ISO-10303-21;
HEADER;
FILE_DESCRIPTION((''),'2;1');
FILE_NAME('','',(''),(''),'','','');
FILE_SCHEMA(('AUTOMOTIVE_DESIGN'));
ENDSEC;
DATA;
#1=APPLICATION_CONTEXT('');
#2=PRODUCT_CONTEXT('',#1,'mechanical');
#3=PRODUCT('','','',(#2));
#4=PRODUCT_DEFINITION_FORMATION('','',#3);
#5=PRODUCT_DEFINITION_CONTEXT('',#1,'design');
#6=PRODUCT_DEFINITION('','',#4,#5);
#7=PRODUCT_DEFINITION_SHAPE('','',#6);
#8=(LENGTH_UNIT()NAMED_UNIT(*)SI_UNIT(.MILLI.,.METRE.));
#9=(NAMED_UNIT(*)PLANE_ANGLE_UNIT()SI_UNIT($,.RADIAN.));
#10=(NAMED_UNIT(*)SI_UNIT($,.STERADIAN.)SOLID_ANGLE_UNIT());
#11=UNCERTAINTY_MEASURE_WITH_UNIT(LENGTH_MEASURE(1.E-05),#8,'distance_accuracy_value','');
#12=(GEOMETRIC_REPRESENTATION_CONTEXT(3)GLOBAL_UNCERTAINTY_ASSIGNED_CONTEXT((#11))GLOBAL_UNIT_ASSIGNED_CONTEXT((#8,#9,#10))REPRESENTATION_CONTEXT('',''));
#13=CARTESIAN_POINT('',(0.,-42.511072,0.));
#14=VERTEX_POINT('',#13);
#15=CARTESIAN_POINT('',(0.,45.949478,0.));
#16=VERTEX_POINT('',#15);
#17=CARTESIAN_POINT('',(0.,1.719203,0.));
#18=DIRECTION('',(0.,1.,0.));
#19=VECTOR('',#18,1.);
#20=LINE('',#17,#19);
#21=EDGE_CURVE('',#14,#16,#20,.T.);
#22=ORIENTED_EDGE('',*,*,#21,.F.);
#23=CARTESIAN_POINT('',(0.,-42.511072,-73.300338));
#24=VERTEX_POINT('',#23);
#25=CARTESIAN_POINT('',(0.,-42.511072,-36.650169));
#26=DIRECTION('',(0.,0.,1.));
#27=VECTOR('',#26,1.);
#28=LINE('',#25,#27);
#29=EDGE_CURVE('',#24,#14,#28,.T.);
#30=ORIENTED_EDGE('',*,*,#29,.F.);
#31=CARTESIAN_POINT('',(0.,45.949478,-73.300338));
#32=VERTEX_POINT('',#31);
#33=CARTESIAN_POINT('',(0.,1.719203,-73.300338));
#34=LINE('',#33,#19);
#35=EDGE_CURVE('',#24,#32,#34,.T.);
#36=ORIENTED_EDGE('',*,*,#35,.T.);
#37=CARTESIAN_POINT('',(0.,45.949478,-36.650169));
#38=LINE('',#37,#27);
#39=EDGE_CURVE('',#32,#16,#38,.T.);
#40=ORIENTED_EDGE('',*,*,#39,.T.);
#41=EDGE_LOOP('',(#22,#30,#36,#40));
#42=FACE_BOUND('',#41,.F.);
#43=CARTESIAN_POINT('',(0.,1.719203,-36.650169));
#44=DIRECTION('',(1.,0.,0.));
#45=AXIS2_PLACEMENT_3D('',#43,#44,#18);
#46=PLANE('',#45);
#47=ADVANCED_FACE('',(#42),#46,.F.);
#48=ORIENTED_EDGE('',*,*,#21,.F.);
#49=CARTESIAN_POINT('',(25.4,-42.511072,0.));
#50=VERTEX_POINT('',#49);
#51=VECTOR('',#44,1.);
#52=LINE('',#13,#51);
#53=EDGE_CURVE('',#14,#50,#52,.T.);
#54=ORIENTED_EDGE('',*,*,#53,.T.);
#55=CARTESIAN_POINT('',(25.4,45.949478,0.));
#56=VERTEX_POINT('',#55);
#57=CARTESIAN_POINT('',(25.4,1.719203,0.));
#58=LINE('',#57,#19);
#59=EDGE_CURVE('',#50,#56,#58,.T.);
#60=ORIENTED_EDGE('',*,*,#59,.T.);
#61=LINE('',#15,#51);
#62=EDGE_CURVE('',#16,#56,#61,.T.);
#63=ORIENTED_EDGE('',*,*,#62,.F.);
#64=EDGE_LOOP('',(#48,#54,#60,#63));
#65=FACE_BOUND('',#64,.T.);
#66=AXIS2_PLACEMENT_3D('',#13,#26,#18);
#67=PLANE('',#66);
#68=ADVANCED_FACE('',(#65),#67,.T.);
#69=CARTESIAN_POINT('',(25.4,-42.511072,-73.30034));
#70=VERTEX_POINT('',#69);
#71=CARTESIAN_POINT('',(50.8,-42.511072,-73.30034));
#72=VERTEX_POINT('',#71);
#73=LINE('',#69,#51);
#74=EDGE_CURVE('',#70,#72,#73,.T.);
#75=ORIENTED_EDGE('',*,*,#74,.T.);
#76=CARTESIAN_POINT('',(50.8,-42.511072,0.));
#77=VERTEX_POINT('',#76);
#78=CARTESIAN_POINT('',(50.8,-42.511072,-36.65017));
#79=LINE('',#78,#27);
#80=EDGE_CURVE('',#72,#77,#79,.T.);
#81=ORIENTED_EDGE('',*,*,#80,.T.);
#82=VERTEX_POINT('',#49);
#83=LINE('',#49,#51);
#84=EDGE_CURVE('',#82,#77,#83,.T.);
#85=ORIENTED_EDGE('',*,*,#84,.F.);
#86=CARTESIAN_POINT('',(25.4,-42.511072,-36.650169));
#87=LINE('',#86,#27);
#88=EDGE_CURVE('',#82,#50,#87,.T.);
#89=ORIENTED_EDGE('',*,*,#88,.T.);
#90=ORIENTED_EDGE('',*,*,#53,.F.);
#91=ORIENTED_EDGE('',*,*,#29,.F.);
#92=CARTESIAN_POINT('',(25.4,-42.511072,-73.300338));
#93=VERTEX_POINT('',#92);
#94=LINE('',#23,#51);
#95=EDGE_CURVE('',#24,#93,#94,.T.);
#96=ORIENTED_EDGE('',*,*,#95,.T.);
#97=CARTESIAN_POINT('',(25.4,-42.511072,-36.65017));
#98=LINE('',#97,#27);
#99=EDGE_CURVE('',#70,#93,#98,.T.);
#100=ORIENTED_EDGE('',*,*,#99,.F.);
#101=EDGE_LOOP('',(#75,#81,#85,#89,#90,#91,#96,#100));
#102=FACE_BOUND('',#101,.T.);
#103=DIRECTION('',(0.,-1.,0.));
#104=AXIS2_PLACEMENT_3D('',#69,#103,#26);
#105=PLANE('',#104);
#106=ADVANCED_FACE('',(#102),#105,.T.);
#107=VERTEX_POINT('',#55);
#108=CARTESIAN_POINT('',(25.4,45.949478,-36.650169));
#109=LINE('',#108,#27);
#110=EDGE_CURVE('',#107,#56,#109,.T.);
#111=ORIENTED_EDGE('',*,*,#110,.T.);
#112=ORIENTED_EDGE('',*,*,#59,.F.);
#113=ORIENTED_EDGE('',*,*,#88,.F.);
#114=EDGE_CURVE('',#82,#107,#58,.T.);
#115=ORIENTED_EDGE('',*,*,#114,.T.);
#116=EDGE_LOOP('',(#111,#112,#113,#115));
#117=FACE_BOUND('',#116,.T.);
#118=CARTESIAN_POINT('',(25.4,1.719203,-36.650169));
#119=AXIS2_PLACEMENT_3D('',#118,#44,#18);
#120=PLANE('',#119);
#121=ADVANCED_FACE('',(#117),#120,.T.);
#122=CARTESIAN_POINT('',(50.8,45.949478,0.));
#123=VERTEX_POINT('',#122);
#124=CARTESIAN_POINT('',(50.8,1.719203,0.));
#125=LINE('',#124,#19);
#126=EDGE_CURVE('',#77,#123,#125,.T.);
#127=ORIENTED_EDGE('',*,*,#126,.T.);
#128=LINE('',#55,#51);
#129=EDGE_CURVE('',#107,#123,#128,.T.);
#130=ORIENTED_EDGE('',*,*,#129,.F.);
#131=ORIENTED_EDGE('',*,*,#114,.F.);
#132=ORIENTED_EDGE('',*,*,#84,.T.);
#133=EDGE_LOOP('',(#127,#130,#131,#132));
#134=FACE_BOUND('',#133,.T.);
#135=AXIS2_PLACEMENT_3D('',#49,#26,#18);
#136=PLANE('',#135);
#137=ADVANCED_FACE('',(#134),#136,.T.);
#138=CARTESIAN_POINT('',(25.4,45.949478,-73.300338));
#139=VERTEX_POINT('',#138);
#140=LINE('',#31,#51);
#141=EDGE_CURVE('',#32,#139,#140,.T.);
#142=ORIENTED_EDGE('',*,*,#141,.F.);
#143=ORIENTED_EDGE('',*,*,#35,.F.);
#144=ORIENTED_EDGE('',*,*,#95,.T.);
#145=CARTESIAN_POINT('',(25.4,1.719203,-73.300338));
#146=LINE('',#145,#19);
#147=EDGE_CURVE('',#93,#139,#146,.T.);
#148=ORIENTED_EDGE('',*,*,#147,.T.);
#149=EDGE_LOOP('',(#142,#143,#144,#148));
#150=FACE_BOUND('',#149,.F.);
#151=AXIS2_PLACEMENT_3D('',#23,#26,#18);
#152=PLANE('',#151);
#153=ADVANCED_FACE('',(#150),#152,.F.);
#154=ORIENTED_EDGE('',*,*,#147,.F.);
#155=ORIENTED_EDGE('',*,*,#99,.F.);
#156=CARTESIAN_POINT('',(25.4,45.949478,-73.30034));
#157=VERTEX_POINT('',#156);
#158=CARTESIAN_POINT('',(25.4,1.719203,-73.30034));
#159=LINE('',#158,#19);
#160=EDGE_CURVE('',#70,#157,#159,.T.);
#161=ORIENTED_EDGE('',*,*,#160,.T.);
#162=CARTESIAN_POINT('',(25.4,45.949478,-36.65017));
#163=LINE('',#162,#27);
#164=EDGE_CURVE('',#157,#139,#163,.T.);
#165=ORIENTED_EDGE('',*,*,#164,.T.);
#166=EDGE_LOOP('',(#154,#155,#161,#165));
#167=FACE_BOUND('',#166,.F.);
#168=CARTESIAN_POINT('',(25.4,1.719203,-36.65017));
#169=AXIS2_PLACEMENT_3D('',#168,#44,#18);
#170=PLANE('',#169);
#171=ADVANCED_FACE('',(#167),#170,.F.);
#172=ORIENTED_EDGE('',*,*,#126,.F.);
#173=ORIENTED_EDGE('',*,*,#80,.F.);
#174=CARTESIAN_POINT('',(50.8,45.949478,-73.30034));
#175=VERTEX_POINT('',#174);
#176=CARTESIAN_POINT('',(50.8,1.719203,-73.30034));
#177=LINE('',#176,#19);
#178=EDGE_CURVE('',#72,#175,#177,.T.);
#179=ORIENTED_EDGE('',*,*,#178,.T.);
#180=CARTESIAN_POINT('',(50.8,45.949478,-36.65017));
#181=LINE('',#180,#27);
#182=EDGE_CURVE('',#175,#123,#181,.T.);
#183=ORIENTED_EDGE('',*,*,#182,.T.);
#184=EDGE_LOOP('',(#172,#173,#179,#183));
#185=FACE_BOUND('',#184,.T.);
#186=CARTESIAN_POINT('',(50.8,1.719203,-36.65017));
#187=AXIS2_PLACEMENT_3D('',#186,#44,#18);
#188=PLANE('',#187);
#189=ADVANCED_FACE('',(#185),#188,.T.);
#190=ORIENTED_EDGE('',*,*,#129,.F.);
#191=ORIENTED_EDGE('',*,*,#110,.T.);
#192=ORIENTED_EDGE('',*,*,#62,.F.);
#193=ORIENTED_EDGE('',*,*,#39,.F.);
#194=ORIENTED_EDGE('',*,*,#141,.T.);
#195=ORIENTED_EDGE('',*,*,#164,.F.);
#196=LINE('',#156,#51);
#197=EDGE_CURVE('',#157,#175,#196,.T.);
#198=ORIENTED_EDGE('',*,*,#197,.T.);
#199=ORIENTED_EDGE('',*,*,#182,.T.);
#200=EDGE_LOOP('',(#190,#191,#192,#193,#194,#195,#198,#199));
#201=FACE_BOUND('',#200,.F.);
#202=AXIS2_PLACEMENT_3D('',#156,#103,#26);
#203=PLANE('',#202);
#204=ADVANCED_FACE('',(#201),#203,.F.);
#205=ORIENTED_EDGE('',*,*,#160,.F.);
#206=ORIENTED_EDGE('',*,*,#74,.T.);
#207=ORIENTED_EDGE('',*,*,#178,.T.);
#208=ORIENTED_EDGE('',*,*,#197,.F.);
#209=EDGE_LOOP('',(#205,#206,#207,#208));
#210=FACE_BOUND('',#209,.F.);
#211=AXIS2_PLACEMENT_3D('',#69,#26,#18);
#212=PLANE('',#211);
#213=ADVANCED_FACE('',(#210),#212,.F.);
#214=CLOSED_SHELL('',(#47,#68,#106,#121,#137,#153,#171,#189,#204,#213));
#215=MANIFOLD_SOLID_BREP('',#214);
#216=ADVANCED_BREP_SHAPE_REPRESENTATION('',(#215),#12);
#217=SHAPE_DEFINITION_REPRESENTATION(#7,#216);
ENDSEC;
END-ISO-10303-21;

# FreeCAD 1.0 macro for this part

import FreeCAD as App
import Part
import Sketcher
Q = App.Units.Quantity

doc = App.newDocument("Part")
body = doc.addObject("PartDesign::Body", "Body")

# Sketch on YZ plane
sketch1 = body.newObject("Sketcher::SketchObject", "Sketch")
sketch1.AttachmentSupport = (doc.getObject("YZ_Plane"), [""])
sketch1.MapMode = "FlatFace"
sketch1.addGeometry([
    Part.LineSegment(App.Vector(-43, 0, 0), App.Vector(-43, -73, 0)),
    Part.LineSegment(App.Vector(-43, -73, 0), App.Vector(46, -73, 0)),
    Part.LineSegment(App.Vector(46, -73, 0), App.Vector(46, 0, 0)),
    Part.LineSegment(App.Vector(46, 0, 0), App.Vector(-43, 0, 0)),
], False)
sketch1.addConstraint([
    Sketcher.Constraint("Coincident", 0, 2, 1, 1),
    Sketcher.Constraint("Coincident", 1, 2, 2, 1),
    Sketcher.Constraint("Coincident", 2, 2, 3, 1),
    Sketcher.Constraint("Coincident", 3, 2, 0, 1),
    Sketcher.Constraint("Vertical", 0),
    Sketcher.Constraint("Horizontal", 1),
    Sketcher.Constraint("Vertical", 2),
    Sketcher.Constraint("Horizontal", 3),
    Sketcher.Constraint("PointOnObject", 2, 2, -1),
    Sketcher.Constraint("DistanceX", 1, 1, 1, 2, Q("88.46055 mm")),
    Sketcher.Constraint("DistanceY", 0, 2, 0, 1, Q("73.300339 mm")),
    Sketcher.Constraint("DistanceX", 0, 2, -1, 1, Q("42.511072 mm")),
])
pad1 = body.newObject("PartDesign::Pad", "Pad")
pad1.Profile = sketch1
pad1.Length = Q("1 in")

# Sketch on YZ plane
sketch2 = body.newObject("Sketcher::SketchObject", "Sketch001")
sketch2.AttachmentSupport = (doc.getObject("YZ_Plane"), [""])
sketch2.MapMode = "FlatFace"
sketch2.AttachmentOffset = App.Placement(App.Vector(0, 0, 1 * 25.4), App.Rotation())
sketch2.addGeometry([
    Part.LineSegment(App.Vector(-43, 0, 0), App.Vector(-43, -73, 0)),
    Part.LineSegment(App.Vector(-43, -73, 0), App.Vector(46, -73, 0)),
    Part.LineSegment(App.Vector(46, -73, 0), App.Vector(46, 0, 0)),
    Part.LineSegment(App.Vector(46, 0, 0), App.Vector(-43, 0, 0)),
], False)
sketch2.addConstraint([
    Sketcher.Constraint("Coincident", 0, 2, 1, 1),
    Sketcher.Constraint("Coincident", 1, 2, 2, 1),
    Sketcher.Constraint("Coincident", 2, 2, 3, 1),
    Sketcher.Constraint("Coincident", 3, 2, 0, 1),
    Sketcher.Constraint("Vertical", 0),
    Sketcher.Constraint("Horizontal", 1),
    Sketcher.Constraint("Vertical", 2),
    Sketcher.Constraint("Horizontal", 3),
    Sketcher.Constraint("PointOnObject", 2, 2, -1),
    Sketcher.Constraint("DistanceX", 1, 1, 1, 2, Q("88.46055 mm")),
    Sketcher.Constraint("DistanceY", 0, 2, 0, 1, Q("73.30034 mm")),
    Sketcher.Constraint("DistanceX", 0, 2, -1, 1, Q("42.511072 mm")),
])
pad2 = body.newObject("PartDesign::Pad", "Pad001")
pad2.Profile = sketch2
pad2.Length = Q("1 in")

# Sketch on YZ plane
sketch3 = body.newObject("Sketcher::SketchObject", "Sketch002")
sketch3.AttachmentSupport = (doc.getObject("YZ_Plane"), [""])
sketch3.MapMode = "FlatFace"
sketch3.addGeometry([
    Part.LineSegment(App.Vector(-43, 0, 0), App.Vector(-43, -73, 0)),
    Part.LineSegment(App.Vector(-43, -73, 0), App.Vector(46, -73, 0)),
    Part.LineSegment(App.Vector(46, -73, 0), App.Vector(46, 0, 0)),
    Part.LineSegment(App.Vector(46, 0, 0), App.Vector(-43, 0, 0)),
], False)
sketch3.addConstraint([
    Sketcher.Constraint("Coincident", 0, 2, 1, 1),
    Sketcher.Constraint("Coincident", 1, 2, 2, 1),
    Sketcher.Constraint("Coincident", 2, 2, 3, 1),
    Sketcher.Constraint("Coincident", 3, 2, 0, 1),
    Sketcher.Constraint("Vertical", 0),
    Sketcher.Constraint("Horizontal", 1),
    Sketcher.Constraint("Vertical", 2),
    Sketcher.Constraint("Horizontal", 3),
    Sketcher.Constraint("PointOnObject", 2, 2, -1),
    Sketcher.Constraint("DistanceX", 1, 1, 1, 2, Q("88.46055 mm")),
    Sketcher.Constraint("DistanceY", 0, 2, 0, 1, Q("73.300339 mm")),
    Sketcher.Constraint("DistanceX", 0, 2, -1, 1, Q("42.511072 mm")),
])
pad3 = body.newObject("PartDesign::Pad", "Pad002")
pad3.Profile = sketch3
pad3.Length = Q("1 in")

doc.recompute()
